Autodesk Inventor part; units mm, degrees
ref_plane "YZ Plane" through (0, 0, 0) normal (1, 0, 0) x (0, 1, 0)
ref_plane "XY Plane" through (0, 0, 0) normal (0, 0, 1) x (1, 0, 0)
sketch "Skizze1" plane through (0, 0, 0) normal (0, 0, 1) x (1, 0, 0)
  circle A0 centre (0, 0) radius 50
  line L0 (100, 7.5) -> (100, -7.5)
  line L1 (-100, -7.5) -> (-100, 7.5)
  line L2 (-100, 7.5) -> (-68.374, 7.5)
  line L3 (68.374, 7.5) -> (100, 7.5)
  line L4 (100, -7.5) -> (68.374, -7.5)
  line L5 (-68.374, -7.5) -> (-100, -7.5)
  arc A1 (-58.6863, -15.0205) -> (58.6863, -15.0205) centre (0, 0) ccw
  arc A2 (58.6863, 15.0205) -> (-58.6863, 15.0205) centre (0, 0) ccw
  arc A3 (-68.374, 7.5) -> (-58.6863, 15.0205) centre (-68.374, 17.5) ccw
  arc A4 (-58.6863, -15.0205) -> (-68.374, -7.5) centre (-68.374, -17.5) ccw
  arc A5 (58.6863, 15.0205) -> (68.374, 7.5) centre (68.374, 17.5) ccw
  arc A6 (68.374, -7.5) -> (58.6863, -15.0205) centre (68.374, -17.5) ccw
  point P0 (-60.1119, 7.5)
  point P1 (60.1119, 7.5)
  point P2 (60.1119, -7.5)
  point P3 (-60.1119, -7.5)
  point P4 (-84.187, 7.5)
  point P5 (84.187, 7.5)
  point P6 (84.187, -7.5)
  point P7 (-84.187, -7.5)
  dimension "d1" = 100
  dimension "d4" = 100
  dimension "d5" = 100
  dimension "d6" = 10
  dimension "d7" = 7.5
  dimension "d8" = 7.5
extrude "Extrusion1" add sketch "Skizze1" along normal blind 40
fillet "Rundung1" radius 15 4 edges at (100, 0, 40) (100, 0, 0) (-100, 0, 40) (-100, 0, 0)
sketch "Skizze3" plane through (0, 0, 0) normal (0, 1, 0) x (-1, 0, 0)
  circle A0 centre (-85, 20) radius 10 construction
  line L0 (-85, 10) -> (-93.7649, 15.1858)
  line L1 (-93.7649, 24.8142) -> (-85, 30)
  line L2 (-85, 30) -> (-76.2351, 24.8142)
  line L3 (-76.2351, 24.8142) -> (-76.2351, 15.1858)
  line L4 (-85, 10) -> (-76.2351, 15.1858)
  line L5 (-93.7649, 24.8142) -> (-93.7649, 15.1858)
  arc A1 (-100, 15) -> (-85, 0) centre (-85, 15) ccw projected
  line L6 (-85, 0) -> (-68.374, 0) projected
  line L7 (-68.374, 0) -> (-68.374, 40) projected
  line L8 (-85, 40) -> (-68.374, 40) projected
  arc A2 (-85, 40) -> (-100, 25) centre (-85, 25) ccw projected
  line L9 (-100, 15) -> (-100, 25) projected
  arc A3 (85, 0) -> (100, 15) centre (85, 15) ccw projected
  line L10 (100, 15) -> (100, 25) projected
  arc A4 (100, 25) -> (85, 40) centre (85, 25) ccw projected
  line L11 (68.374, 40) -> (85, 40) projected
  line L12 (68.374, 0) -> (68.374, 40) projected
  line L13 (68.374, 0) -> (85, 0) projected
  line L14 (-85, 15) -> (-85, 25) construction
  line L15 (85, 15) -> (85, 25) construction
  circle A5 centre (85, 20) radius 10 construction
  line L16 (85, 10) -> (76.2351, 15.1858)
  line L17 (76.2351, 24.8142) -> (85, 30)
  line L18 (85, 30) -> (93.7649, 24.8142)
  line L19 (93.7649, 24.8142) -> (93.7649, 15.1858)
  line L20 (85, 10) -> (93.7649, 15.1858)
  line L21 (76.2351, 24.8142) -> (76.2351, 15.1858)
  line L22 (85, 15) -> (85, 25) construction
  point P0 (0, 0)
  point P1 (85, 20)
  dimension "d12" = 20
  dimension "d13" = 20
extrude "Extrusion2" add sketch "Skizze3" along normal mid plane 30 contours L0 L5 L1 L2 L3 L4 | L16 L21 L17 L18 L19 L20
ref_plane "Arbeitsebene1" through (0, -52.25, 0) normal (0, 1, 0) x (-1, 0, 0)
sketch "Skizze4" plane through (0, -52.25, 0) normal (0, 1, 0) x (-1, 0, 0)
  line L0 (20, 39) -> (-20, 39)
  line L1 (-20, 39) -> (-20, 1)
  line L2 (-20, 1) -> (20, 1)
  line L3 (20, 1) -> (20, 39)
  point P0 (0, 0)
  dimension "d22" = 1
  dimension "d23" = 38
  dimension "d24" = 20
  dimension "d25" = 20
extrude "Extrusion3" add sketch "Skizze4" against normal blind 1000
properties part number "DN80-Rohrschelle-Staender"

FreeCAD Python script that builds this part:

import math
import FreeCAD as App
import Part
import Sketcher
from FreeCAD import Vector
Q = App.Units.Quantity


def edges_at(feature, points):
    """Names of the edges that pass closest to the given points."""
    edges = feature.Shape.Edges
    near = lambda p: min(range(len(edges)), key=lambda i: edges[i].distToShape(Part.Vertex(*p))[0])
    return sorted({f"Edge{near(p) + 1}" for p in points})


def add_polygon(sketch, points):
    """Adds a closed chain of lines whose ends are joined by coincident constraints."""
    first, n = sketch.GeometryCount, len(points)
    for a, b in zip(points, points[1:] + points[:1]):
        sketch.addGeometry(Part.LineSegment(App.Vector(*a, 0), App.Vector(*b, 0)), False)
    for i in range(n):
        sketch.addConstraint(Sketcher.Constraint("Coincident", first + i, 2, first + (i + 1) % n, 1))

doc = App.newDocument("Part")
body = doc.addObject("PartDesign::Body", "Body")

# Sketch on XY plane
sketch1 = body.newObject("Sketcher::SketchObject", "Sketch")
sketch1.AttachmentSupport = (doc.getObject("XY_Plane"), [""])
sketch1.MapMode = "FlatFace"
sketch1.addGeometry([
    Part.LineSegment(Vector(100, -8, 0), Vector(100, 8, 0)),  # 0
    Part.LineSegment(Vector(100, 8, 0), Vector(68, 8, 0)),  # 1
    Part.ArcOfCircle(Part.Circle(Vector(68, 18, 0), Vector(0, 0, 1), 10), math.radians(-166), math.radians(-90)),  # 2
    Part.ArcOfCircle(Part.Circle(Vector(0, 0, 0), Vector(0, 0, 1), 61), math.radians(14), math.radians(166)),  # 3
    Part.ArcOfCircle(Part.Circle(Vector(-68, 18, 0), Vector(0, 0, 1), 10), math.radians(-90), math.radians(-14)),  # 4
    Part.LineSegment(Vector(-68, 8, 0), Vector(-100, 8, 0)),  # 5
    Part.LineSegment(Vector(-100, 8, 0), Vector(-100, -8, 0)),  # 6
    Part.LineSegment(Vector(-100, -8, 0), Vector(-68, -8, 0)),  # 7
    Part.ArcOfCircle(Part.Circle(Vector(-68, -18, 0), Vector(0, 0, 1), 10), math.radians(14), math.radians(90)),  # 8
    Part.ArcOfCircle(Part.Circle(Vector(0, 0, 0), Vector(0, 0, 1), 61), math.radians(-166), math.radians(-14)),  # 9
    Part.ArcOfCircle(Part.Circle(Vector(68, -18, 0), Vector(0, 0, 1), 10), math.radians(90), math.radians(166)),  # 10
    Part.LineSegment(Vector(68, -8, 0), Vector(100, -8, 0)),  # 11
    Part.Circle(Vector(0, 0, 0), Vector(0, 0, 1), 50),  # 12
], False)
sketch1.addConstraint([
    Sketcher.Constraint("Coincident", 0, 2, 1, 1),
    Sketcher.Constraint("Tangent", 1, 2, 2, 2),
    Sketcher.Constraint("Tangent", 2, 1, 3, 1),
    Sketcher.Constraint("Tangent", 3, 2, 4, 2),
    Sketcher.Constraint("Tangent", 4, 1, 5, 1),
    Sketcher.Constraint("Coincident", 5, 2, 6, 1),
    Sketcher.Constraint("Coincident", 6, 2, 7, 1),
    Sketcher.Constraint("Tangent", 7, 2, 8, 2),
    Sketcher.Constraint("Tangent", 8, 1, 9, 1),
    Sketcher.Constraint("Tangent", 9, 2, 10, 2),
    Sketcher.Constraint("Tangent", 10, 1, 11, 1),
    Sketcher.Constraint("Coincident", 11, 2, 0, 1),
    Sketcher.Constraint("Vertical", 0),
    Sketcher.Constraint("Horizontal", 1),
    Sketcher.Constraint("Horizontal", 5),
    Sketcher.Constraint("Vertical", 6),
    Sketcher.Constraint("Horizontal", 7),
    Sketcher.Constraint("Horizontal", 11),
    Sketcher.Constraint("Coincident", 3, 3, -1, 1),
    Sketcher.Constraint("Coincident", 9, 3, -1, 1),
    Sketcher.Constraint("Coincident", 12, 3, -1, 1),
    Sketcher.Constraint("Equal", 2, 4),
    Sketcher.Constraint("Equal", 4, 8),
    Sketcher.Constraint("Equal", 3, 9),
    Sketcher.Constraint("Equal", 8, 10),
    Sketcher.Constraint("Symmetric", 0, 2, 6, 2, -1, 1),
    Sketcher.Constraint("Horizontal", 2, 3, 4, 3),
    Sketcher.Constraint("Horizontal", 8, 3, 10, 3),
    Sketcher.Constraint("Diameter", 12, Q("100 mm")),
    Sketcher.Constraint("Radius", 2, Q("10 mm")),
    Sketcher.Constraint("DistanceX", -1, 1, 0, 2, Q("100 mm")),
    Sketcher.Constraint("DistanceY", -1, 1, 0, 2, Q("7.5 mm")),
    Sketcher.Constraint("Radius", 3, Q("60.578 mm")),
])
pad1 = body.newObject("PartDesign::Pad", "Pad")
pad1.Profile = sketch1
pad1.Length = 40
doc.recompute()

fillet = body.newObject("PartDesign::Fillet", "Fillet")
fillet.Base = (pad1, edges_at(pad1, [
    (100, 0, 40),
    (100, 0, 0),
    (-100, 0, 40),
    (-100, 0, 0),
]))
fillet.Radius = 15

# Sketch on XZ plane
sketch2 = body.newObject("Sketcher::SketchObject", "Sketch001")
sketch2.AttachmentSupport = (doc.getObject("XZ_Plane"), [""])
sketch2.MapMode = "FlatFace"
add_polygon(sketch2, [(94, 15), (85, 10), (76, 15), (76, 25), (85, 30), (94, 25)])  # lines 0-5
add_polygon(sketch2, [(-76, 15), (-85, 10), (-94, 15), (-94, 25), (-85, 30), (-76, 25)])  # lines 6-11
sketch2.addConstraint([
    Sketcher.Constraint("Vertical", 2),
    Sketcher.Constraint("Vertical", 5),
    Sketcher.Constraint("Vertical", 8),
    Sketcher.Constraint("Vertical", 11),
    Sketcher.Constraint("Symmetric", 0, 2, 6, 2, -2),
    Sketcher.Constraint("Symmetric", 5, 2, 7, 2, -2),
    Sketcher.Constraint("Symmetric", 3, 2, 9, 2, -2),
    Sketcher.Constraint("Symmetric", 2, 2, 10, 2, -2),
    Sketcher.Constraint("Parallel", 0, 3),
    Sketcher.Constraint("Parallel", 1, 4),
    Sketcher.Constraint("Parallel", 3, 6),
    Sketcher.Constraint("Parallel", 4, 7),
    Sketcher.Constraint("Parallel", 6, 9),
    Sketcher.Constraint("Horizontal", 2, 2, 4, 2),
    Sketcher.Constraint("Horizontal", 1, 2, 5, 2),
    Sketcher.Constraint("DistanceY", 0, 2, 3, 2, Q("20 mm")),
    Sketcher.Constraint("DistanceX", -1, 1, 0, 2, Q("85 mm")),
    Sketcher.Constraint("DistanceY", -1, 1, 0, 2, Q("10 mm")),
    Sketcher.Constraint("Angle", 0, Q("-149.389 deg")),
    Sketcher.Constraint("Distance", 0, Q("10.184 mm")),
])
pad2 = body.newObject("PartDesign::Pad", "Pad001")
pad2.Profile = sketch2
pad2.Length = 30
pad2.Midplane = True

# Sketch on XZ plane
sketch3 = body.newObject("Sketcher::SketchObject", "Sketch002")
sketch3.AttachmentSupport = (doc.getObject("XZ_Plane"), [""])
sketch3.MapMode = "FlatFace"
sketch3.AttachmentOffset = App.Placement(Vector(0, 0, 52.25), App.Rotation())
add_polygon(sketch3, [(-20, 1), (-20, 39), (20, 39), (20, 1)])  # lines 0-3
sketch3.addConstraint([
    Sketcher.Constraint("Vertical", 0),
    Sketcher.Constraint("Horizontal", 1),
    Sketcher.Constraint("Vertical", 2),
    Sketcher.Constraint("Horizontal", 3),
    Sketcher.Constraint("DistanceY", 0, 1, 0, 2, Q("38 mm")),
    Sketcher.Constraint("DistanceX", 0, 2, -1, 1, Q("20 mm")),
    Sketcher.Constraint("DistanceX", -1, 1, 1, 2, Q("20 mm")),
    Sketcher.Constraint("DistanceY", -1, 1, 2, 2, Q("1 mm")),
])
pad3 = body.newObject("PartDesign::Pad", "Pad002")
pad3.Profile = sketch3
pad3.Length = 1000

doc.recompute()
